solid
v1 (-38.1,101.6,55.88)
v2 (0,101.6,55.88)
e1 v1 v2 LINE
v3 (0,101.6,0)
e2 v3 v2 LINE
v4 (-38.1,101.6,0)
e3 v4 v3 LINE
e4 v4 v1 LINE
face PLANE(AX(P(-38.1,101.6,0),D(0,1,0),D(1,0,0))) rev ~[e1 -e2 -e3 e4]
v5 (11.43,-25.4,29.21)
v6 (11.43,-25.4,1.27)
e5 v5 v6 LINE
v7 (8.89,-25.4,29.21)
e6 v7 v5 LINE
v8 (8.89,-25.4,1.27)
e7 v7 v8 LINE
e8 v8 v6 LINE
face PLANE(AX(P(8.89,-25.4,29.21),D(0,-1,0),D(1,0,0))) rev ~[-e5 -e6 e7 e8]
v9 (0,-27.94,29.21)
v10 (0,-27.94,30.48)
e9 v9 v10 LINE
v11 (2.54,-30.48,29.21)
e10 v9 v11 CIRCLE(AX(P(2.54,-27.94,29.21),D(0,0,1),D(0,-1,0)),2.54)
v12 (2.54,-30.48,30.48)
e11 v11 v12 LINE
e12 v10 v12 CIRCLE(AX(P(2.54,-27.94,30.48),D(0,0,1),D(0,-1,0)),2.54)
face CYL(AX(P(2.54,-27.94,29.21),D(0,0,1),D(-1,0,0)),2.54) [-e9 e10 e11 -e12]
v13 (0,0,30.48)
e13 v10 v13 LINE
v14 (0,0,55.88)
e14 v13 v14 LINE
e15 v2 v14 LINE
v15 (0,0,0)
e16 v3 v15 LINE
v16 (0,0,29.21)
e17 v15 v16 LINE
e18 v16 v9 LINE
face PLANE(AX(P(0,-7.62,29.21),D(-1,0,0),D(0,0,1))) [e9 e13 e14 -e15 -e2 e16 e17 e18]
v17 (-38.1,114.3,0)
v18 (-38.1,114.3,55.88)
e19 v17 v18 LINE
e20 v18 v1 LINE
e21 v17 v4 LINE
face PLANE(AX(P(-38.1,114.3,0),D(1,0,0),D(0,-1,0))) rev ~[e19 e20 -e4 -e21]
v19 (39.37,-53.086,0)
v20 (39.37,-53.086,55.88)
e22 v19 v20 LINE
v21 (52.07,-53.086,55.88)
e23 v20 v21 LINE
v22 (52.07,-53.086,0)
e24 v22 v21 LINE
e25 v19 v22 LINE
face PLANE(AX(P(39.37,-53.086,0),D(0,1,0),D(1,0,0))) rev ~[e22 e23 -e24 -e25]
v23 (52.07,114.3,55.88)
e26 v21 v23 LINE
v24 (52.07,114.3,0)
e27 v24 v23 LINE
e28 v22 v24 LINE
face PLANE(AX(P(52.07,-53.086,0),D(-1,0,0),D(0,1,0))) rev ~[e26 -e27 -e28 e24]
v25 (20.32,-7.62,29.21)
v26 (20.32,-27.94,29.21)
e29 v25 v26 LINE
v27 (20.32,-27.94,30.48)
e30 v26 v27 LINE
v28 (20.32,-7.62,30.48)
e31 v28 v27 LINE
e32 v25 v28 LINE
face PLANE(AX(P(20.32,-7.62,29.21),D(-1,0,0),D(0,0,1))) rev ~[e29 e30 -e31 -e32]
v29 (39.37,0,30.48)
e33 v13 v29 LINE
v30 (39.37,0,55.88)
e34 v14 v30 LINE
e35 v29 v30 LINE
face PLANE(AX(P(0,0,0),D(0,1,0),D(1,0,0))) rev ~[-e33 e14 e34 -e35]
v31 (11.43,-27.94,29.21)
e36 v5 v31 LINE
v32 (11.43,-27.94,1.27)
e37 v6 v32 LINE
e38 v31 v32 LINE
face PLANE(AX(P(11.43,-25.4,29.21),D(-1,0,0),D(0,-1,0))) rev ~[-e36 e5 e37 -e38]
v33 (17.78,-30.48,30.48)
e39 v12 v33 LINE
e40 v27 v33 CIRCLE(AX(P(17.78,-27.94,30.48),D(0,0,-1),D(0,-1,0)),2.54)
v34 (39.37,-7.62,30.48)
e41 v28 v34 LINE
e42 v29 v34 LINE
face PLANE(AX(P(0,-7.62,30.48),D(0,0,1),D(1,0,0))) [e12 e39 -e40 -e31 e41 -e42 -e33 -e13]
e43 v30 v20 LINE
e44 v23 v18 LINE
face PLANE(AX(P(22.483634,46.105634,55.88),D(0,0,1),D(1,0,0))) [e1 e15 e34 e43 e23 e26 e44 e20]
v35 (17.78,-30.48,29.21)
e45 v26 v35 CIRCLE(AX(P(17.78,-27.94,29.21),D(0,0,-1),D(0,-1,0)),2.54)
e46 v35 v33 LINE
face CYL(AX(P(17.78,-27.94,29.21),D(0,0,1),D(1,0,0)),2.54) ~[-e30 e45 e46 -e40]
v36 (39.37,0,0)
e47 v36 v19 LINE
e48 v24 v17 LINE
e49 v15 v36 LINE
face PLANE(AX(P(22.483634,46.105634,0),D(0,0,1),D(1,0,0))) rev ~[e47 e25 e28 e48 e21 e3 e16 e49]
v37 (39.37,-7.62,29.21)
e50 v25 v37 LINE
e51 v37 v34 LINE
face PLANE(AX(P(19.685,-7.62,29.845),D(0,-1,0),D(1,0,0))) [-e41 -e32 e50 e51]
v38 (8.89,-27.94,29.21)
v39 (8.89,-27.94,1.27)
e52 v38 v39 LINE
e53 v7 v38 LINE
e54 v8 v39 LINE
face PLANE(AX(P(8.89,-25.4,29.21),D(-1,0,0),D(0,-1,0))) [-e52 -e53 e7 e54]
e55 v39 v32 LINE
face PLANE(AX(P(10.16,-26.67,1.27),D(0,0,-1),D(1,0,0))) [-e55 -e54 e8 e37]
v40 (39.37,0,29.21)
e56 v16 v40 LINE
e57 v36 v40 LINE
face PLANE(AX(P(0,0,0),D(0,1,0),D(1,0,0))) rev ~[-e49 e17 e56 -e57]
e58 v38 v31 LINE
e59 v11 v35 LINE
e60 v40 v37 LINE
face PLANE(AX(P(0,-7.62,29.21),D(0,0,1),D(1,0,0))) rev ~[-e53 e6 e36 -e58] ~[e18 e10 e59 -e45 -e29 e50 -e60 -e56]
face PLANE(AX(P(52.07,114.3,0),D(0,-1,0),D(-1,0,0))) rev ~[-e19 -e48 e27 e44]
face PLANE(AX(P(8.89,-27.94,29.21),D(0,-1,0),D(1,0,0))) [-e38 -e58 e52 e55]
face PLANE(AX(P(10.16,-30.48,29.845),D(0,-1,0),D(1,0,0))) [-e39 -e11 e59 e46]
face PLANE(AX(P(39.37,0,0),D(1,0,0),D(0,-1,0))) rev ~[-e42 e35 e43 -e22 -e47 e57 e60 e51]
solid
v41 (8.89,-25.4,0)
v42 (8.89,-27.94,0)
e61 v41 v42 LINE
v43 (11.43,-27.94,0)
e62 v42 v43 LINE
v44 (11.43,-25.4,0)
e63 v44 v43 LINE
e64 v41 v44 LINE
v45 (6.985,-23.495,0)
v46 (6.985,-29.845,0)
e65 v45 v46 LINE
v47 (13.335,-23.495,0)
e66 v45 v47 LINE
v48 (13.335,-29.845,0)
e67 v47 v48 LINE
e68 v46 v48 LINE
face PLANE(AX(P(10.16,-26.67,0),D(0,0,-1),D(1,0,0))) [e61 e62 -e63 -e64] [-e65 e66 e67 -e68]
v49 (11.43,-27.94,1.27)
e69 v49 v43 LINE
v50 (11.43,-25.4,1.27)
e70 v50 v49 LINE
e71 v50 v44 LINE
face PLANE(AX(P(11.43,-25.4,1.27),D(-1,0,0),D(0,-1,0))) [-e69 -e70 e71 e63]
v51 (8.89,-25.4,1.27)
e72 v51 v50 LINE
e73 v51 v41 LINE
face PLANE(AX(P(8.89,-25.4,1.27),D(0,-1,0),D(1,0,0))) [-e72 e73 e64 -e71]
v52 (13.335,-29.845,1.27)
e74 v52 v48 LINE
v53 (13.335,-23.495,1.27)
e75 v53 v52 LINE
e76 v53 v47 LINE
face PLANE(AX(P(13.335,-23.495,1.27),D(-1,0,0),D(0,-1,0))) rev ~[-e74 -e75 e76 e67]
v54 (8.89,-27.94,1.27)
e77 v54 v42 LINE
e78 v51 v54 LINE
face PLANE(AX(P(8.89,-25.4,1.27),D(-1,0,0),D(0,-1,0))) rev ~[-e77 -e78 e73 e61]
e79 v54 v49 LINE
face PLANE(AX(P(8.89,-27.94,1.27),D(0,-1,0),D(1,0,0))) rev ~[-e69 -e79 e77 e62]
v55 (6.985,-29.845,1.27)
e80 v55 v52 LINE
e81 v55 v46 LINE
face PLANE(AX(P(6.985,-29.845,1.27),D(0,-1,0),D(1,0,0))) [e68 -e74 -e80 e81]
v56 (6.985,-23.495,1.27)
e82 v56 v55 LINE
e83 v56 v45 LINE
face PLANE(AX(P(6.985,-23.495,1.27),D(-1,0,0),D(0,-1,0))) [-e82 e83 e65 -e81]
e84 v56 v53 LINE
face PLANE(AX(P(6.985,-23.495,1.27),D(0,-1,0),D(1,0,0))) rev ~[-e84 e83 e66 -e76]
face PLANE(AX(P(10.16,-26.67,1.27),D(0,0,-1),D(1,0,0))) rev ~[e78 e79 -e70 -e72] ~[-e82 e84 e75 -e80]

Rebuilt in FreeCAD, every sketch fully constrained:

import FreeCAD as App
import Part
import Sketcher
from FreeCAD import Vector
Q = App.Units.Quantity


def edges_at(feature, points):
    """Names of the edges that pass closest to the given points."""
    edges = feature.Shape.Edges
    near = lambda p: min(range(len(edges)), key=lambda i: edges[i].distToShape(Part.Vertex(*p))[0])
    return sorted({f"Edge{near(p) + 1}" for p in points})


def add_polygon(sketch, points):
    """Adds a closed chain of lines whose ends are joined by coincident constraints."""
    first, n = sketch.GeometryCount, len(points)
    for a, b in zip(points, points[1:] + points[:1]):
        sketch.addGeometry(Part.LineSegment(App.Vector(*a, 0), App.Vector(*b, 0)), False)
    for i in range(n):
        sketch.addConstraint(Sketcher.Constraint("Coincident", first + i, 2, first + (i + 1) % n, 1))

doc = App.newDocument("Part")
body = doc.addObject("PartDesign::Body", "Body")

sketch1 = body.newObject("Sketcher::SketchObject", "Sketch")
sketch1.AttachmentSupport = (doc.getObject("XY_Plane"), [""])
sketch1.MapMode = "FlatFace"
add_polygon(sketch1, [(0, 102), (0, 0), (39, 0), (39, -53), (52, -53), (52, 114), (-38, 114), (-38, 102)])
sketch1.addConstraint([
    Sketcher.Constraint("Vertical", 0),
    Sketcher.Constraint("Horizontal", 1),
    Sketcher.Constraint("Vertical", 2),
    Sketcher.Constraint("Horizontal", 3),
    Sketcher.Constraint("Vertical", 4),
    Sketcher.Constraint("Horizontal", 5),
    Sketcher.Constraint("Vertical", 6),
    Sketcher.Constraint("Horizontal", 7),
    Sketcher.Constraint("Coincident", 0, 2, -1, 1),
    Sketcher.Constraint("Equal", 3, 6),
    Sketcher.Constraint("DistanceY", 0, 2, 0, 1, Q("4 in")),
    Sketcher.Constraint("DistanceX", 3, 1, 3, 2, Q("0.5 in")),
    Sketcher.Constraint("DistanceX", 7, 1, 7, 2, Q("1.5 in")),
    Sketcher.Constraint("DistanceX", 1, 1, 1, 2, Q("1.55 in")),
    Sketcher.Constraint("DistanceY", 2, 2, 2, 1, Q("2.09 in")),
])
pad1 = body.newObject("PartDesign::Pad", "Pad")
pad1.Profile = sketch1
pad1.Length = Q("2.2 in")

sketch2 = body.newObject("Sketcher::SketchObject", "Sketch001")
sketch2.AttachmentSupport = (doc.getObject("XZ_Plane"), [""])
sketch2.MapMode = "FlatFace"
add_polygon(sketch2, [(0, 30.5), (0, 29.2), (39.4, 29.2), (39.4, 30.5)])
sketch2.addConstraint([
    Sketcher.Constraint("Vertical", 0),
    Sketcher.Constraint("Horizontal", 1),
    Sketcher.Constraint("Vertical", 2),
    Sketcher.Constraint("Horizontal", 3),
    Sketcher.Constraint("PointOnObject", 0, 2, -2),
    Sketcher.Constraint("DistanceX", 1, 1, 1, 2, Q("1.55 in")),
    Sketcher.Constraint("DistanceY", 0, 2, 0, 1, Q("0.05 in")),
    Sketcher.Constraint("DistanceY", -1, 1, 2, 2, Q("1.2 in")),
])
pad2 = body.newObject("PartDesign::Pad", "Pad001")
pad2.Profile = sketch2
pad2.Length = Q("0.3 in")

sketch3 = body.newObject("Sketcher::SketchObject", "Sketch002")
sketch3.AttachmentSupport = (doc.getObject("XZ_Plane"), [""])
sketch3.MapMode = "FlatFace"
sketch3.AttachmentOffset = App.Placement(Vector(0, 0, 0.3 * 25.4), App.Rotation())
add_polygon(sketch3, [(0, 30.5), (0, 29.2), (20.3, 29.2), (20.3, 30.5)])
sketch3.addConstraint([
    Sketcher.Constraint("Vertical", 0),
    Sketcher.Constraint("Horizontal", 1),
    Sketcher.Constraint("Vertical", 2),
    Sketcher.Constraint("Horizontal", 3),
    Sketcher.Constraint("PointOnObject", 0, 2, -2),
    Sketcher.Constraint("DistanceX", 1, 1, 1, 2, Q("0.8 in")),
    Sketcher.Constraint("DistanceY", 0, 2, 0, 1, Q("0.05 in")),
    Sketcher.Constraint("DistanceY", -1, 1, 2, 2, Q("1.2 in")),
])
pad3 = body.newObject("PartDesign::Pad", "Pad002")
pad3.Profile = sketch3
pad3.Length = Q("0.9 in")
doc.recompute()

fillet = body.newObject("PartDesign::Fillet", "Fillet")
fillet.Base = (pad3, edges_at(pad3, [(0, -30.48, 29.845), (20.32, -30.48, 29.845)]))
fillet.Radius = Q("0.1 in")

sketch4 = body.newObject("Sketcher::SketchObject", "Sketch003")
sketch4.AttachmentSupport = (doc.getObject("XY_Plane"), [""])
sketch4.MapMode = "FlatFace"
sketch4.AttachmentOffset = App.Placement(Vector(0, 0, 1.15 * 25.4), App.Rotation())
add_polygon(sketch4, [(8.9, -27.9), (8.9, -25.4), (11.4, -25.4), (11.4, -27.9)])
sketch4.addConstraint([
    Sketcher.Constraint("Vertical", 0),
    Sketcher.Constraint("Horizontal", 1),
    Sketcher.Constraint("Vertical", 2),
    Sketcher.Constraint("Horizontal", 3),
    Sketcher.Constraint("Equal", 3, 0),
    Sketcher.Constraint("DistanceX", 1, 1, 1, 2, Q("0.1 in")),
    Sketcher.Constraint("DistanceY", 0, 2, -1, 1, Q("1 in")),
    Sketcher.Constraint("DistanceX", -1, 1, 0, 2, Q("0.35 in")),
])
pad4 = body.newObject("PartDesign::Pad", "Pad003")
pad4.Profile = sketch4
pad4.Length = Q("1.1 in")
pad4.Reversed = True
body2 = doc.addObject("PartDesign::Body", "Body001")

sketch5 = body2.newObject("Sketcher::SketchObject", "Sketch004")
sketch5.AttachmentSupport = (doc.getObject("XY_Plane001"), [""])
sketch5.MapMode = "FlatFace"
sketch5.AttachmentOffset = App.Placement(Vector(0, 0, 0.05 * 25.4), App.Rotation())
add_polygon(sketch5, [(7, -29.8), (7, -23.5), (13.3, -23.5), (13.3, -29.8)])
add_polygon(sketch5, [(11.4, -25.4), (8.9, -25.4), (8.9, -27.9), (11.4, -27.9)])
sketch5.addConstraint([
    Sketcher.Constraint("Vertical", 0),
    Sketcher.Constraint("Horizontal", 1),
    Sketcher.Constraint("Vertical", 2),
    Sketcher.Constraint("Horizontal", 3),
    Sketcher.Constraint("Horizontal", 4),
    Sketcher.Constraint("Vertical", 5),
    Sketcher.Constraint("Horizontal", 6),
    Sketcher.Constraint("Vertical", 7),
    Sketcher.Constraint("Equal", 3, 0),
    Sketcher.Constraint("Equal", 6, 5),
    Sketcher.Constraint("DistanceX", 4, 2, 4, 1, Q("0.1 in")),
    Sketcher.Constraint("DistanceY", 4, 2, -1, 1, Q("1 in")),
    Sketcher.Constraint("DistanceX", 1, 1, 1, 2, Q("0.25 in")),
    Sketcher.Constraint("DistanceX", -1, 1, 4, 2, Q("0.35 in")),
    Sketcher.Constraint("DistanceX", -1, 1, 0, 2, Q("0.275 in")),
    Sketcher.Constraint("DistanceY", 0, 2, -1, 1, Q("0.925 in")),
])
pad5 = body2.newObject("PartDesign::Pad", "Pad004")
pad5.Profile = sketch5
pad5.Length = Q("0.05 in")
pad5.Reversed = True

doc.recompute()
